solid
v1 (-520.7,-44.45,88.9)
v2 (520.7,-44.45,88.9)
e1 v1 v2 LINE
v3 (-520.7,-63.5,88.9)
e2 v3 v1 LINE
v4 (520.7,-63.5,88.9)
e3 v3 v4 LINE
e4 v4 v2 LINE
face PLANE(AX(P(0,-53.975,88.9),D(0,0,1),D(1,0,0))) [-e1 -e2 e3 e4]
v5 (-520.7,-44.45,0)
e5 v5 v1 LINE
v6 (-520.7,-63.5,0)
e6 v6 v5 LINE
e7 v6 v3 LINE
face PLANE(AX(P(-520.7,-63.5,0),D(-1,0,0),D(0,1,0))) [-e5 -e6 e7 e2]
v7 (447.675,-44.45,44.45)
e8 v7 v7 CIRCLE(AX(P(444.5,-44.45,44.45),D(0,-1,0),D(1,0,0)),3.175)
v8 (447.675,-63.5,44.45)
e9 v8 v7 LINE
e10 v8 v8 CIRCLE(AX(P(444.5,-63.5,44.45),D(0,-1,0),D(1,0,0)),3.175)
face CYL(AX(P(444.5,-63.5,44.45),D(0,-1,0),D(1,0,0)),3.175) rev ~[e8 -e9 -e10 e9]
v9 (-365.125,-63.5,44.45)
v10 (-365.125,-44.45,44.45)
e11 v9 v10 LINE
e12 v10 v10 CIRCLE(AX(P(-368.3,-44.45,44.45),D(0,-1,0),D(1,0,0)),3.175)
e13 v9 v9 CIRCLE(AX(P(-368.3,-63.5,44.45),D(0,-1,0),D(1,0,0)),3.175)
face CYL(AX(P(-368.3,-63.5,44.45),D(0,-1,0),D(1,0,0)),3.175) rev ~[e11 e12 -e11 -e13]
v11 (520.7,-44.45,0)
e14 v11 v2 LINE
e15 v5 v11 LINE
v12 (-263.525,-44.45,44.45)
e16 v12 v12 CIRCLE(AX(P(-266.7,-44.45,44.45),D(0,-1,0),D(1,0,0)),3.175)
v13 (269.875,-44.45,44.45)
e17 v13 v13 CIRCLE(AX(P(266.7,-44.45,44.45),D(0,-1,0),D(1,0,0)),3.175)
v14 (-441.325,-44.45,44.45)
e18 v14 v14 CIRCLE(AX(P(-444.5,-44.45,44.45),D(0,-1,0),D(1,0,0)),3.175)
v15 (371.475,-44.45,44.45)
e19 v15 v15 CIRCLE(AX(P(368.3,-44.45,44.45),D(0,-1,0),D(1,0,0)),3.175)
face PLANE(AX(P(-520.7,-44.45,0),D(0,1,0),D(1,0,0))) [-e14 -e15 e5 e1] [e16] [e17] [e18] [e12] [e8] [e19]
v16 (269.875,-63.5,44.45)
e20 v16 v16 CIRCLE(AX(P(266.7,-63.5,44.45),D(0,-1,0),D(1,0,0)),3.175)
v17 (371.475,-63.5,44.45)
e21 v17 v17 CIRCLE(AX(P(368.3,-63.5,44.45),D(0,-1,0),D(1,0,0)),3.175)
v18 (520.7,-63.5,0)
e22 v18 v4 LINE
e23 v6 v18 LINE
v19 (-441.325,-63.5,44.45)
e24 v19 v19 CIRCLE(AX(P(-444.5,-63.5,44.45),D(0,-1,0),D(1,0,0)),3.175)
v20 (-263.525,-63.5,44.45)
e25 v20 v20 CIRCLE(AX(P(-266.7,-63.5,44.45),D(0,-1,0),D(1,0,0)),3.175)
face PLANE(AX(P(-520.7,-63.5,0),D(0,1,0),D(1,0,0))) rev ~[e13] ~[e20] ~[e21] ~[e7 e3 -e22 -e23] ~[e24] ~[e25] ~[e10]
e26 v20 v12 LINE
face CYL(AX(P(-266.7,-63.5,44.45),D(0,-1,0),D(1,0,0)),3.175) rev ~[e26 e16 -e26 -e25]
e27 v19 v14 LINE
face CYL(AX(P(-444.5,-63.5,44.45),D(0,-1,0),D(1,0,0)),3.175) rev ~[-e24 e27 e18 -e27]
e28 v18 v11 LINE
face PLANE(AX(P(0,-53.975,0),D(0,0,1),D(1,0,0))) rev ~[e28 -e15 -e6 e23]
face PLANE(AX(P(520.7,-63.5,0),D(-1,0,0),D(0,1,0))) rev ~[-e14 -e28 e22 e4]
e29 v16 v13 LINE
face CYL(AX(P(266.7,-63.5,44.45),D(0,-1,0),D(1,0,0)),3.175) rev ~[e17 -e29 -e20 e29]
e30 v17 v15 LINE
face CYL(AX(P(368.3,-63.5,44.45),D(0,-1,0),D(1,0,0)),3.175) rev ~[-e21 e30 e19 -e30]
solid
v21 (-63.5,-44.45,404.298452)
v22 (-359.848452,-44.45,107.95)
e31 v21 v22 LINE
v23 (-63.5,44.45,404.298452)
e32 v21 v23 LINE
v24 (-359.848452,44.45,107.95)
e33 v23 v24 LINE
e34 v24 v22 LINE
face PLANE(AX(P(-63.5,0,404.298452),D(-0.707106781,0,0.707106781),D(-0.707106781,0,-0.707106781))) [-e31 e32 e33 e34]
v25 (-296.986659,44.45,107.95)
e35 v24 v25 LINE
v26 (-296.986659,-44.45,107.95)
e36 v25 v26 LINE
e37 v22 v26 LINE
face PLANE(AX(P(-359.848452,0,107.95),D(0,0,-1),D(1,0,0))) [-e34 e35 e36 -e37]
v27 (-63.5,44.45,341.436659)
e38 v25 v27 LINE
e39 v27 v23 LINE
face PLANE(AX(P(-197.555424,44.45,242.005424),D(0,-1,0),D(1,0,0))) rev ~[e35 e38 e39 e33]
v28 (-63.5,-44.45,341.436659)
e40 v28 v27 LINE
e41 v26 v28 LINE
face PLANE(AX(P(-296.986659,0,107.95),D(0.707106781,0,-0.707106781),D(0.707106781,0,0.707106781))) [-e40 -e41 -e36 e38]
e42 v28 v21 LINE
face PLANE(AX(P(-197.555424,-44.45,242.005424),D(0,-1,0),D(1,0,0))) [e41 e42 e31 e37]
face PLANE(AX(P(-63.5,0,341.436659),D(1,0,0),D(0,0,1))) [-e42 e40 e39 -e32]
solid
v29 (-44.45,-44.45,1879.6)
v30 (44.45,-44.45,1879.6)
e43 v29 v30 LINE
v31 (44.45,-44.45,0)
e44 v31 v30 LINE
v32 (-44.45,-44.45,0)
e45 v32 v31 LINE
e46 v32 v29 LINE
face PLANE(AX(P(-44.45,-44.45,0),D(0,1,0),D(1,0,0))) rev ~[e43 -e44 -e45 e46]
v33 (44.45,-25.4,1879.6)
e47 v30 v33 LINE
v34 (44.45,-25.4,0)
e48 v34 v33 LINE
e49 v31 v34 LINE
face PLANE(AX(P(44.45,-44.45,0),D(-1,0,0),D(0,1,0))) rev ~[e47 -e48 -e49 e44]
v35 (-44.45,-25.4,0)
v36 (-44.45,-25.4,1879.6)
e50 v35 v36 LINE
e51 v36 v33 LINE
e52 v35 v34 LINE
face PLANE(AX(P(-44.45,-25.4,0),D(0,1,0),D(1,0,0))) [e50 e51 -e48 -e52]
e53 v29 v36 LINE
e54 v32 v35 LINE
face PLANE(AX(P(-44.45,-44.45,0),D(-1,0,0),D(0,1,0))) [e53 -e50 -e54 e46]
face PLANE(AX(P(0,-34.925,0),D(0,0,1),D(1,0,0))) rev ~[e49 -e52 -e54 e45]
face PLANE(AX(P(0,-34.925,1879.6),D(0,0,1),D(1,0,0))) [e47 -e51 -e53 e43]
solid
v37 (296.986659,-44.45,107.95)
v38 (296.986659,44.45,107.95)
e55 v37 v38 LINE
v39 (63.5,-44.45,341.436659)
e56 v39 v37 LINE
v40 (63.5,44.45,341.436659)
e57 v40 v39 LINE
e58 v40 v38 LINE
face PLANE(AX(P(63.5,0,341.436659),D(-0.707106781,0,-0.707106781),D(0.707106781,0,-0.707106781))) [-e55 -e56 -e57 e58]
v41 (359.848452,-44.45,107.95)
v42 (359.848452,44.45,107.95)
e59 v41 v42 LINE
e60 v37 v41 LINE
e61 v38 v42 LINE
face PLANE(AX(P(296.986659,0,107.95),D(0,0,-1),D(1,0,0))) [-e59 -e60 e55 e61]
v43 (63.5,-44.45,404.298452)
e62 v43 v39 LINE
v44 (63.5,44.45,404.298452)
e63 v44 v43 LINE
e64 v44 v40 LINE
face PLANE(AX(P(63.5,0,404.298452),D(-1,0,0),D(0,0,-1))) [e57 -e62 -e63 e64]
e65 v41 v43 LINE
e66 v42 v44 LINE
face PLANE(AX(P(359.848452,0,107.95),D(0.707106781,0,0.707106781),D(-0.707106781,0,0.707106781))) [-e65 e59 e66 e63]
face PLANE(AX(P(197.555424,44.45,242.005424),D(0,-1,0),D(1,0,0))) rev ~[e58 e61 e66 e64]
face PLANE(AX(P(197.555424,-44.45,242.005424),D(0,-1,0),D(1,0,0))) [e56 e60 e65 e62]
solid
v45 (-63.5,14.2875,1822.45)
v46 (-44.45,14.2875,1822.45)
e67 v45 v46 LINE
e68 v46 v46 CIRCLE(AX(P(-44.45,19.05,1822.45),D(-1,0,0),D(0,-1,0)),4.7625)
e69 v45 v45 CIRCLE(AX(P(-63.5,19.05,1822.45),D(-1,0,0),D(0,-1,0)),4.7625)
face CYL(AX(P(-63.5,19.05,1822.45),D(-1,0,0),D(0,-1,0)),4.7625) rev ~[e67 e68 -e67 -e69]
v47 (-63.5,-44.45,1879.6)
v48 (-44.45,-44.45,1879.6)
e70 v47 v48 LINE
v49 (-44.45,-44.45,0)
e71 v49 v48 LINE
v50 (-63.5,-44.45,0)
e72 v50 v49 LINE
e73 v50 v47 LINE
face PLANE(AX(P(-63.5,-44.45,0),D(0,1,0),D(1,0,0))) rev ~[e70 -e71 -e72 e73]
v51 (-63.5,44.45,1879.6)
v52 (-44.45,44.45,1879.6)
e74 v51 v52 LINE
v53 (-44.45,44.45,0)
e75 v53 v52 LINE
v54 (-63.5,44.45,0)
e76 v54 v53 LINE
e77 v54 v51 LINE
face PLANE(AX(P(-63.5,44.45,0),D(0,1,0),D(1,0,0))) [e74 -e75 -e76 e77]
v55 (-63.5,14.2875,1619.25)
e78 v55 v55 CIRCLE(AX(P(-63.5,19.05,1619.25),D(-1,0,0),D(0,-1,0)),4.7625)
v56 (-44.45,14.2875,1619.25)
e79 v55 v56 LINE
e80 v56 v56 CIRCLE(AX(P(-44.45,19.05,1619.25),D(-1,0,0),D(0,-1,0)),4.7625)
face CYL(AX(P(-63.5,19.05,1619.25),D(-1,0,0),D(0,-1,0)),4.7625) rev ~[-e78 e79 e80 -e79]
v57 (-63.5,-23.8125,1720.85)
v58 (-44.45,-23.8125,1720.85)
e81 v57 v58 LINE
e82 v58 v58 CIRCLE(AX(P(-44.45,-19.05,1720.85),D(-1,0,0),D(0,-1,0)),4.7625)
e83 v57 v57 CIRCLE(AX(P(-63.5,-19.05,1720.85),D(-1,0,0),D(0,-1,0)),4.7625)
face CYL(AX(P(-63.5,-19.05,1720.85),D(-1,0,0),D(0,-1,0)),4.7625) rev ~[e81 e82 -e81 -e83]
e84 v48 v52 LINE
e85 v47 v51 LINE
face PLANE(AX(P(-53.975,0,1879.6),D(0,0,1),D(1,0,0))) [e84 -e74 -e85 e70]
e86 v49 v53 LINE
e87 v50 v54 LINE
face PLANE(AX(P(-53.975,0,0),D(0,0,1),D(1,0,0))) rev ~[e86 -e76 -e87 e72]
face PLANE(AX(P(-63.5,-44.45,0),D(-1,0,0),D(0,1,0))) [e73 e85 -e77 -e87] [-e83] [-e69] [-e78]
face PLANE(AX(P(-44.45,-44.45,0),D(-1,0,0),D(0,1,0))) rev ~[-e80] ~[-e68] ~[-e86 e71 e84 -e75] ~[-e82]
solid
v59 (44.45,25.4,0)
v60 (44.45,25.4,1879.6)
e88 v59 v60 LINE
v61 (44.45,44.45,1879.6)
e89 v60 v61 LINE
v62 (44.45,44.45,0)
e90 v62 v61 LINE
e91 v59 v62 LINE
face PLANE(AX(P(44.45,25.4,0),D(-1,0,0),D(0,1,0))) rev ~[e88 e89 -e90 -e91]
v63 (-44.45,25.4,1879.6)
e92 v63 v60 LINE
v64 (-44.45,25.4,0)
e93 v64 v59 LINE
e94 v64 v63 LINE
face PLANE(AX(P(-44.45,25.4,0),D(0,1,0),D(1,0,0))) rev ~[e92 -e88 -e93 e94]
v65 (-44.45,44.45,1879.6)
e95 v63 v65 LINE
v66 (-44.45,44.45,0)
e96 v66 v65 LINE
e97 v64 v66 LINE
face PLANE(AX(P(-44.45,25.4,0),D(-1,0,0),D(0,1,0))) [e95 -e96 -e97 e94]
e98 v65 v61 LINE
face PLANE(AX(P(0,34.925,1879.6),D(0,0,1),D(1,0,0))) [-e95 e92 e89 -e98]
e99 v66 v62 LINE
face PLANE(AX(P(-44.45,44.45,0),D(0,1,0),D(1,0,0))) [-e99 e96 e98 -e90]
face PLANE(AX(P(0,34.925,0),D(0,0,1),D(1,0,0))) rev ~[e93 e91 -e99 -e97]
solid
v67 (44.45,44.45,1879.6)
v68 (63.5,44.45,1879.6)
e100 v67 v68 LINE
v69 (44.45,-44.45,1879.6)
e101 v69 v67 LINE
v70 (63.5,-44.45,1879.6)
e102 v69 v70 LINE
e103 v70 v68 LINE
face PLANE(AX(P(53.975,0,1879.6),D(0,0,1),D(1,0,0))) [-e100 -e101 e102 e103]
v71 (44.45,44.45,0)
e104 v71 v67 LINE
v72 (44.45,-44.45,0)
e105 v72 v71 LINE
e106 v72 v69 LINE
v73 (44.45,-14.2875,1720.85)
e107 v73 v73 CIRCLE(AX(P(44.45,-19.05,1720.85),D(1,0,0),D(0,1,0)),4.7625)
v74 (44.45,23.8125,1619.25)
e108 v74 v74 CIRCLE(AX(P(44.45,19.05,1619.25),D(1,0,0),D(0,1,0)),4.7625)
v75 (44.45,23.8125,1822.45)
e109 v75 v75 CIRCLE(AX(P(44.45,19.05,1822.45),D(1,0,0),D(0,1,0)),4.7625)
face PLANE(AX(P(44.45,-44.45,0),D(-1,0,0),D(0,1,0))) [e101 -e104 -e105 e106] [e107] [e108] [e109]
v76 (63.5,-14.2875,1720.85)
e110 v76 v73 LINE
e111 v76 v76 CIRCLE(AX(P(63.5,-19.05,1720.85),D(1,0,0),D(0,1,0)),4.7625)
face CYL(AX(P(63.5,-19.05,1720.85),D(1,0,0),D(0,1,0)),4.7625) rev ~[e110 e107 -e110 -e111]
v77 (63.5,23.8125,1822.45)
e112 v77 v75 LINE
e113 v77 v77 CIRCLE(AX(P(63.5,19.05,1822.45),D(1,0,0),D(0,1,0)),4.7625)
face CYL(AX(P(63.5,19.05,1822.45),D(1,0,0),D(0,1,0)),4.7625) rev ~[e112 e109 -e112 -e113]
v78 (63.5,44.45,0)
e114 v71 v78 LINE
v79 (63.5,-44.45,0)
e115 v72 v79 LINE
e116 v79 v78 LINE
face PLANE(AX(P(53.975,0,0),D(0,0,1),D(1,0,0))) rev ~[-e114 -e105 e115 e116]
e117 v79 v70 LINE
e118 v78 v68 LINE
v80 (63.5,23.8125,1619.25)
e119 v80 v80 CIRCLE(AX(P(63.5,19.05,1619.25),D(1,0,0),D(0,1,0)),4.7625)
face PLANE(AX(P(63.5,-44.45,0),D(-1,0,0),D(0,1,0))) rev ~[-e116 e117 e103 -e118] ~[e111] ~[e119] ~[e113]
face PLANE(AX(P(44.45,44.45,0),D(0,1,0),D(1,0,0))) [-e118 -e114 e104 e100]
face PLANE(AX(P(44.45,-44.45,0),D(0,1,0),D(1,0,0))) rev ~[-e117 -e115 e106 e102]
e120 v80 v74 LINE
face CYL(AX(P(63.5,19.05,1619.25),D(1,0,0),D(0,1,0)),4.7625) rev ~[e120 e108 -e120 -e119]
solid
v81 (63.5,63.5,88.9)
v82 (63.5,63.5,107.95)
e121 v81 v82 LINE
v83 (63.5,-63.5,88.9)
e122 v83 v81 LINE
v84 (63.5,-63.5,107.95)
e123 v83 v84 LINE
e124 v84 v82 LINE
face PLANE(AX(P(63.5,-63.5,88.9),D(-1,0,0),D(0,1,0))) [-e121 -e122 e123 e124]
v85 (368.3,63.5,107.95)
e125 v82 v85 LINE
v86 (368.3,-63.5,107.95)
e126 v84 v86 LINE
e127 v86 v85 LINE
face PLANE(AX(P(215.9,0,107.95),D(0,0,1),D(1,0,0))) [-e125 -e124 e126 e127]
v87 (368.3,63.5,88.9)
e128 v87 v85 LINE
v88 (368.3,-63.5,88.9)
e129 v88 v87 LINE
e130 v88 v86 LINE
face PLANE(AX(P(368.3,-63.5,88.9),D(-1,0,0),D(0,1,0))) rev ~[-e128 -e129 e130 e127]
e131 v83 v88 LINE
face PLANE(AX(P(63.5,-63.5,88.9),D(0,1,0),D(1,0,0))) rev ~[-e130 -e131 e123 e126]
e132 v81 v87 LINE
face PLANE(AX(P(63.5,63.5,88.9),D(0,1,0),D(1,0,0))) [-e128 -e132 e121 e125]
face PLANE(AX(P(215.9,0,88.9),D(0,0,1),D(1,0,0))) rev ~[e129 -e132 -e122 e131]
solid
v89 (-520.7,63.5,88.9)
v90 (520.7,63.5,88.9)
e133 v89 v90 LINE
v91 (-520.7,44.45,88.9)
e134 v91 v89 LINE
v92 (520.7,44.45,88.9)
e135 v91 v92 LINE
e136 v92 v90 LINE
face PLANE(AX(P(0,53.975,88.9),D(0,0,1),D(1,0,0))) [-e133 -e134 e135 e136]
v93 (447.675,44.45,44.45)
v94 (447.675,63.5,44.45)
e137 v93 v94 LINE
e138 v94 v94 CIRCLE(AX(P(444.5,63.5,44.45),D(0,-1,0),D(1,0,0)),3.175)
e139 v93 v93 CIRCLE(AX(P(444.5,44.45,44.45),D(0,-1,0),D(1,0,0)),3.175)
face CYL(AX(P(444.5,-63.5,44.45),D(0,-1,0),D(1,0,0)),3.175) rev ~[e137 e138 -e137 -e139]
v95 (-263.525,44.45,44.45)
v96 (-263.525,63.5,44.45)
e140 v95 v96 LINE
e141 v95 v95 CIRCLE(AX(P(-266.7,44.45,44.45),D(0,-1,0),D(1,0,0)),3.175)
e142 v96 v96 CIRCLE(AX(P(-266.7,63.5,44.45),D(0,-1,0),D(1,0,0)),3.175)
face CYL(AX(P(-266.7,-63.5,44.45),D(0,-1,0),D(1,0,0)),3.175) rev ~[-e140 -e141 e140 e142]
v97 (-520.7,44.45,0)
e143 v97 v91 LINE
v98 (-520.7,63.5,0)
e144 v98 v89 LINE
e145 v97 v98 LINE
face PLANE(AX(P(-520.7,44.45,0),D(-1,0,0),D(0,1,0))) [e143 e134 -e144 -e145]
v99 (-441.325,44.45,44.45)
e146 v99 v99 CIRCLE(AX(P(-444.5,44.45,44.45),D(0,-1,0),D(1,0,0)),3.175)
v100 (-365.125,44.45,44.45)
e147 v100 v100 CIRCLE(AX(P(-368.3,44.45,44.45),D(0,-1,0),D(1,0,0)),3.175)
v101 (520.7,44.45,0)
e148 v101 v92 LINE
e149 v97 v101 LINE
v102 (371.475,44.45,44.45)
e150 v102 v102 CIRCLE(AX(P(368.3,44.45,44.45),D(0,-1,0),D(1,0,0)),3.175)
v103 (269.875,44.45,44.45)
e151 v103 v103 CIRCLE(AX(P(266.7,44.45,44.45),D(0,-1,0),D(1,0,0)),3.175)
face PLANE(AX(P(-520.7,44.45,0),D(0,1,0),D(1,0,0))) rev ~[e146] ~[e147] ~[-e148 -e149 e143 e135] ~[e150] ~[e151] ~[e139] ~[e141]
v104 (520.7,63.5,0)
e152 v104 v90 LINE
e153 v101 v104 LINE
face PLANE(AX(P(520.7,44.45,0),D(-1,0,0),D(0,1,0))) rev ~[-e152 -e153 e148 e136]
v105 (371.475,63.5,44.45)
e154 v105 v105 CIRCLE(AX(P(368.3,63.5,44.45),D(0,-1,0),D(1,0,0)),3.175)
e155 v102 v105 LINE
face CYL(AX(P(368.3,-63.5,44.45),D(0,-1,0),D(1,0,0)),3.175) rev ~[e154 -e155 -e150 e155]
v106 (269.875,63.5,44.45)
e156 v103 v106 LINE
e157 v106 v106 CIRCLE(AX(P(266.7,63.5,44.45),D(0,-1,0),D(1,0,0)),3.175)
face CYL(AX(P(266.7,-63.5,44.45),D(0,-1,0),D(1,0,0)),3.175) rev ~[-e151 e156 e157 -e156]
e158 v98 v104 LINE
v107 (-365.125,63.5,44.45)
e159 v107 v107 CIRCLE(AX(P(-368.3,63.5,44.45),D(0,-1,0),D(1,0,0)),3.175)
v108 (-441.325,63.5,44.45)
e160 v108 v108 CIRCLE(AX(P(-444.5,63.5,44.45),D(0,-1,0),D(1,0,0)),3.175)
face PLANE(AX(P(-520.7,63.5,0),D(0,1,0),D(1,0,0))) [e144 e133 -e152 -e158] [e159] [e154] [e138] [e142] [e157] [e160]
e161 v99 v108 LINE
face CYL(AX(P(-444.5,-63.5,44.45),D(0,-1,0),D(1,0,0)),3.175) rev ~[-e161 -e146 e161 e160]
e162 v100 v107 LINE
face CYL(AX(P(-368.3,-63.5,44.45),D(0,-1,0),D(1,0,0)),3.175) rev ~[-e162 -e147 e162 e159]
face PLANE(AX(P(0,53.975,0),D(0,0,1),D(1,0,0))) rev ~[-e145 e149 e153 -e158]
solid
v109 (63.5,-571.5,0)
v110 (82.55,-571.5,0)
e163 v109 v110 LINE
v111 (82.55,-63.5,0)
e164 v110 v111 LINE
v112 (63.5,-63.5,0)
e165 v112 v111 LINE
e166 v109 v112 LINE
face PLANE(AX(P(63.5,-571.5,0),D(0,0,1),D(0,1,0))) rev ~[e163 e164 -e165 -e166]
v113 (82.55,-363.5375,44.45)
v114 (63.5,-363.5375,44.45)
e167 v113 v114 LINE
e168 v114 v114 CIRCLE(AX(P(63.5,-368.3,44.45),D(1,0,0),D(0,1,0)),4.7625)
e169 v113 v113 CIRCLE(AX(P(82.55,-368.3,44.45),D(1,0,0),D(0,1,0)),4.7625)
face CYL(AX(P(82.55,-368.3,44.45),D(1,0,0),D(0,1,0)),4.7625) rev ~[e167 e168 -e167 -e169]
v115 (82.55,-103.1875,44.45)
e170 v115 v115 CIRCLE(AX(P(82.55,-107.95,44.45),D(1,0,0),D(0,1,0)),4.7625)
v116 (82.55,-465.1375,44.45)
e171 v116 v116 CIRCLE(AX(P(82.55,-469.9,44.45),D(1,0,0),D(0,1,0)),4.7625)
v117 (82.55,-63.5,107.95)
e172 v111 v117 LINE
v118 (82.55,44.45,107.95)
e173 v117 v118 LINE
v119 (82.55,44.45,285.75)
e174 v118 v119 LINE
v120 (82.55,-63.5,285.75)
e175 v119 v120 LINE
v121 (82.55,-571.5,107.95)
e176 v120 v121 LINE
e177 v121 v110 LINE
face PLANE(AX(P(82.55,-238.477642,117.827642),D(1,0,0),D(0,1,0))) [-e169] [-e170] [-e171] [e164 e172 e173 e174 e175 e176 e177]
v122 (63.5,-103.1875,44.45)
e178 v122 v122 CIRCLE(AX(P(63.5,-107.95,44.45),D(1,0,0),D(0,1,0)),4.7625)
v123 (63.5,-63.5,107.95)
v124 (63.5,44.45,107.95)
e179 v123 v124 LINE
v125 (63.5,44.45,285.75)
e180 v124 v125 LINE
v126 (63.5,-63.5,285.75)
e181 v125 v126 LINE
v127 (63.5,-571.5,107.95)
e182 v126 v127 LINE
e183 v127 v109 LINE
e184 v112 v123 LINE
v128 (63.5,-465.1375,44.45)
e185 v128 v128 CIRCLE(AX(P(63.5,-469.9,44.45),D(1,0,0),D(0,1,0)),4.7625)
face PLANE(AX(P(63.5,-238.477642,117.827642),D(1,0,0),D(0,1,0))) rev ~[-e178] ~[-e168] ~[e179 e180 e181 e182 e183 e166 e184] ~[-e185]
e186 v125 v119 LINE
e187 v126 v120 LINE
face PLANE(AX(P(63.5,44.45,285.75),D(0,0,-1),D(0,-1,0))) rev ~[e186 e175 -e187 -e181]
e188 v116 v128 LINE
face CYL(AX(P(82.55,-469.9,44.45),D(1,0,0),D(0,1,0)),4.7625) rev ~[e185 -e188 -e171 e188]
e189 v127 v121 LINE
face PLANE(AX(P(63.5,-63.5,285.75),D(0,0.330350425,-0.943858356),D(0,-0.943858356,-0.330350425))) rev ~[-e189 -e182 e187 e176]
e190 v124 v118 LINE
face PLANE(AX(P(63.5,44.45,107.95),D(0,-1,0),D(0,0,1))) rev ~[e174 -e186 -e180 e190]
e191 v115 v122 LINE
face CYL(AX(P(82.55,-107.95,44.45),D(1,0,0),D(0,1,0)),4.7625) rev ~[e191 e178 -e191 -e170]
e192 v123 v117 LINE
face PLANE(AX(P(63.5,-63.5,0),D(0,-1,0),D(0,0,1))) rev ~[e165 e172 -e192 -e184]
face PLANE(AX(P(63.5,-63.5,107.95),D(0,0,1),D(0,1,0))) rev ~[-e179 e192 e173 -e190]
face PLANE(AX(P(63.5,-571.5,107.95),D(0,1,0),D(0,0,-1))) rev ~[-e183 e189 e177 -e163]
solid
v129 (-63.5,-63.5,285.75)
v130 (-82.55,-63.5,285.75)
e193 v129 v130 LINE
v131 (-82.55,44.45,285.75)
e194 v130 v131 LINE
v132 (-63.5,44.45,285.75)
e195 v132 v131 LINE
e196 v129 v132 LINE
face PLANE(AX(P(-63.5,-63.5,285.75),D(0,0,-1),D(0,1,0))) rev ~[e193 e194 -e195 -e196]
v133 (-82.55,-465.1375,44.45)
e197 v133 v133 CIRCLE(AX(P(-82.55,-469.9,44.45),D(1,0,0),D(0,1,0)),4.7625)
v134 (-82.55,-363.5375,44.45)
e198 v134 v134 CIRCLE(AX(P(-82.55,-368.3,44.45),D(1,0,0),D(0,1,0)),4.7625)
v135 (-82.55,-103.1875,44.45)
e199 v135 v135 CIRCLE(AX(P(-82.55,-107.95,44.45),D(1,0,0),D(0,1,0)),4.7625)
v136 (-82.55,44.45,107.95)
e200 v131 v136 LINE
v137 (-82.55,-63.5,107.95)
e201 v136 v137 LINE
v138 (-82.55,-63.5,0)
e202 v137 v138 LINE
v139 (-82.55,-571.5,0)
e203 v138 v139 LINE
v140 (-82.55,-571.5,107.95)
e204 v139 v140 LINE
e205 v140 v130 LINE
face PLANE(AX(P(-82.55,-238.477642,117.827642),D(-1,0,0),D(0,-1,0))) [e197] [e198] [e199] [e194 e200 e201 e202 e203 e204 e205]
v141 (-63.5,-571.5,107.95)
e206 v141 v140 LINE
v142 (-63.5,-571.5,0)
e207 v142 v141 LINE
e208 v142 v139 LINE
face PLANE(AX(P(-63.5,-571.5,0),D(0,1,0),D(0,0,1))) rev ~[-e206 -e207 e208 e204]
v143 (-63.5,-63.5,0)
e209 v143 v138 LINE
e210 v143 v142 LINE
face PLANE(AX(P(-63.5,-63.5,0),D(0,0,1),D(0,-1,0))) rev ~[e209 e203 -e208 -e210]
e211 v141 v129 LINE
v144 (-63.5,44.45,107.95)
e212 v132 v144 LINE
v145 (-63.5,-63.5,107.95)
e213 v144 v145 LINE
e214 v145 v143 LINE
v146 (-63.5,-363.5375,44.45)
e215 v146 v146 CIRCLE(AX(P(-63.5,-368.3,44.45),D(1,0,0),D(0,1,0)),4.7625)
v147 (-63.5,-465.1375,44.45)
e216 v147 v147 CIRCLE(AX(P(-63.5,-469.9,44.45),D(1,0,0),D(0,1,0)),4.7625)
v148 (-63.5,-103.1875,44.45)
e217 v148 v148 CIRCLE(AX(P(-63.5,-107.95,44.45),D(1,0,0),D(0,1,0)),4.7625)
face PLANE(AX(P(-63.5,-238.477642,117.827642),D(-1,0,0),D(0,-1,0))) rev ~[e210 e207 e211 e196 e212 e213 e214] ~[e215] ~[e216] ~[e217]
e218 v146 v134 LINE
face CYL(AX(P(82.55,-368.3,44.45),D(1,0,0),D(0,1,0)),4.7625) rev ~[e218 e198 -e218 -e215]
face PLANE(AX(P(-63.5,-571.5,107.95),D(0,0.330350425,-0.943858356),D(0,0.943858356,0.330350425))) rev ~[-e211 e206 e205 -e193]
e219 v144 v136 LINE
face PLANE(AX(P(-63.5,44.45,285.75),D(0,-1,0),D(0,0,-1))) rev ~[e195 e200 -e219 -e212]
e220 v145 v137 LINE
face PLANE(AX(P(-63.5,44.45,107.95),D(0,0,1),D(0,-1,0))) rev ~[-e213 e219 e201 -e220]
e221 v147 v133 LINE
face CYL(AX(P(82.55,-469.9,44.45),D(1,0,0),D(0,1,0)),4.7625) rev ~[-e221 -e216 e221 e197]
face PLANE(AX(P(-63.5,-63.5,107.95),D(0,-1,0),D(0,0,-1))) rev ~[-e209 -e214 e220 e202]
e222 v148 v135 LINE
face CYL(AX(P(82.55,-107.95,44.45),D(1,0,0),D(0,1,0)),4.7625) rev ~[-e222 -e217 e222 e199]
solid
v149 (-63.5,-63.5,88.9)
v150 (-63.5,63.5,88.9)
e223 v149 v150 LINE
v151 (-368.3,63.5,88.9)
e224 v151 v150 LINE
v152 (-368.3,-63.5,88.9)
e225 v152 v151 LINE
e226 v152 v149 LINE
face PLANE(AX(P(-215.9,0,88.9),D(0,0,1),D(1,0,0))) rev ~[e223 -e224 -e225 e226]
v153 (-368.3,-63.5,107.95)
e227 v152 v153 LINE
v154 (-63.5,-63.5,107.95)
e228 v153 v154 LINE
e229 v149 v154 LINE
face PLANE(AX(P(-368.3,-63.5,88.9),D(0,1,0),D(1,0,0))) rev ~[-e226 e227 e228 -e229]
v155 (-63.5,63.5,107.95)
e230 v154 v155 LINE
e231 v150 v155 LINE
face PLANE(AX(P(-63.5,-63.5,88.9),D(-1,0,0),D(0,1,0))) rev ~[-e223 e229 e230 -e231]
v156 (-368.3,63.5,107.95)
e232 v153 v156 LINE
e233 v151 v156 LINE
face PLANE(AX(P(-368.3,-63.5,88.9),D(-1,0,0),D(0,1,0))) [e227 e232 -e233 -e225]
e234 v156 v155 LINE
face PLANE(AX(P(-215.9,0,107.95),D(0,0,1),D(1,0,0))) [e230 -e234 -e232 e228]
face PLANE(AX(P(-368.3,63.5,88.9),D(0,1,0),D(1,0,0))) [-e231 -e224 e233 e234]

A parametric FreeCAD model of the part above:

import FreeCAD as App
import Part
import Sketcher
Q = App.Units.Quantity


def add_polygon(sketch, points):
    """Adds a closed chain of lines whose ends are joined by coincident constraints."""
    first, n = sketch.GeometryCount, len(points)
    for a, b in zip(points, points[1:] + points[:1]):
        sketch.addGeometry(Part.LineSegment(App.Vector(*a, 0), App.Vector(*b, 0)), False)
    for i in range(n):
        sketch.addConstraint(Sketcher.Constraint("Coincident", first + i, 2, first + (i + 1) % n, 1))

doc = App.newDocument("Part")
params = doc.addObject("Spreadsheet::Sheet", "Params")
for row, (alias, value) in enumerate([
    ("sketch1_width", "3.5 in"),
    ("sketch1_height", "0.75 in"),
    ("pad1_length", "74 in"),
    ("sketch2_diameter", "0.25 in"),
    ("sketch3_diameter", "0.375 in"),
    ("pocket2_length", "1 in"),
    ("sketch4_width", "3.5 in"),
    ("sketch4_height", "0.75 in"),
    ("pad2_length", "74 in"),
    ("sketch5_height", "3.5 in"),
    ("sketch5_width", "0.75 in"),
    ("pad3_length", "74 in"),
    ("sketch6_diameter", "0.375 in"),
    ("pocket3_length", "1 in"),
    ("sketch7_height", "3.5 in"),
    ("sketch7_width", "0.75 in"),
    ("pad4_length", "74 in"),
    ("sketch8_diameter", "0.375 in"),
    ("pocket4_length", "1 in"),
    ("sketch9_width", "41 in"),
    ("sketch9_height", "0.75 in"),
    ("pad5_length", "3.5 in"),
    ("sketch10_width", "41 in"),
    ("sketch10_height", "0.75 in"),
    ("pad6_length", "3.5 in"),
    ("sketch11_width", "12 in"),
    ("sketch11_height", "5 in"),
    ("pad7_length", "0.75 in"),
    ("sketch12_width", "12 in"),
    ("sketch12_height", "5 in"),
    ("pad8_length", "0.75 in"),
    ("sketch13_length", "13 in"),
    ("sketch13_length2", "16.5 in"),
    ("pad9_length", "1.75 in"),
    ("pad9_length2", "1.75 in"),
    ("sketch14_length", "13 in"),
    ("sketch14_length2", "16.5 in"),
    ("pad10_length", "1.75 in"),
    ("pad10_length2", "1.75 in"),
    ("sketch15_width", "20 in"),
    ("sketch15_height", "7 in"),
    ("sketch15_width2", "4.25 in"),
    ("pad11_length", "0.75 in"),
    ("sketch16_width", "20 in"),
    ("sketch16_height", "7 in"),
    ("sketch16_width2", "4.25 in"),
    ("pad12_length", "0.75 in"),
    ("sketch17_diameter", "0.25 in"),
    ("pad13_length", "127.001 mm"),
    ("sketch18_diameter", "0.375 in"),
    ("pad14_length", "603.251 mm"),
], start=1):
    params.set(f"A{row}", alias)
    params.set(f"B{row}", "=" + value)
    params.setAlias(f"B{row}", alias)

body = doc.addObject("PartDesign::Body", "Body")

# Sketch on XY plane
sketch1 = doc.addObject("Sketcher::SketchObject", "Sketch")
body.addObject(sketch1)
sketch1.AttachmentSupport = (doc.XY_Plane, [""])
sketch1.MapMode = "FlatFace"
add_polygon(sketch1, [(-44, 44), (-44, 25), (44, 25), (44, 44)])  # lines 0-3
sketch1.addConstraint([
    Sketcher.Constraint("Vertical", 0),
    Sketcher.Constraint("Horizontal", 1),
    Sketcher.Constraint("Vertical", 2),
    Sketcher.Constraint("Horizontal", 3),
    Sketcher.Constraint("DistanceX", 1, 1, 1, 2, Q("3.5 in")),
    Sketcher.Constraint("DistanceY", -1, 1, 0, 2, Q("1 in")),
    Sketcher.Constraint("DistanceY", 0, 2, 0, 1, Q("0.75 in")),
    Sketcher.Constraint("DistanceX", 0, 2, -1, 1, Q("1.75 in")),
])
sketch1.setExpression("Constraints[8]", "Params.sketch1_width")
sketch1.setExpression("Constraints[10]", "Params.sketch1_height")
pad1 = doc.addObject("PartDesign::Pad", "Pad")
body.addObject(pad1)
pad1.Profile = sketch1
pad1.setExpression("Length", "Params.pad1_length")

# Sketch on XZ plane
sketch2 = doc.addObject("Sketcher::SketchObject", "Sketch001")
body.addObject(sketch2)
sketch2.AttachmentSupport = (doc.XZ_Plane, [""])
sketch2.MapMode = "FlatFace"
sketch2.AttachmentOffset = App.Placement(App.Vector(0, 0, -2.5 * 25.4), App.Rotation())
sketch2.addGeometry([
    Part.Circle(App.Vector(444.5, 44.5, 0), App.Vector(0, 0, 1), 3.2),  # 0
    Part.Circle(App.Vector(368.3, 44.5, 0), App.Vector(0, 0, 1), 3.2),  # 1
    Part.Circle(App.Vector(266.7, 44.5, 0), App.Vector(0, 0, 1), 3.2),  # 2
    Part.Circle(App.Vector(-266.7, 44.5, 0), App.Vector(0, 0, 1), 3.2),  # 3
    Part.Circle(App.Vector(-368.3, 44.5, 0), App.Vector(0, 0, 1), 3.2),  # 4
    Part.Circle(App.Vector(-444.5, 44.5, 0), App.Vector(0, 0, 1), 3.2),  # 5
], False)
sketch2.addConstraint([
    Sketcher.Constraint("Equal", 0, 1),
    Sketcher.Constraint("Equal", 1, 2),
    Sketcher.Constraint("Equal", 2, 3),
    Sketcher.Constraint("Equal", 3, 4),
    Sketcher.Constraint("Equal", 4, 5),
    Sketcher.Constraint("Symmetric", 2, 3, 3, 3, -2),
    Sketcher.Constraint("Symmetric", 1, 3, 4, 3, -2),
    Sketcher.Constraint("Symmetric", 0, 3, 5, 3, -2),
    Sketcher.Constraint("Horizontal", 0, 3, 1, 3),
    Sketcher.Constraint("Horizontal", 1, 3, 2, 3),
    Sketcher.Constraint("Diameter", 0, Q("0.25 in")),
    Sketcher.Constraint("DistanceX", 1, 3, 0, 3, Q("3 in")),
    Sketcher.Constraint("DistanceX", 2, 3, 1, 3, Q("4 in")),
    Sketcher.Constraint("DistanceX", 3, 3, 2, 3, Q("21 in")),
    Sketcher.Constraint("DistanceY", -1, 1, 0, 3, Q("1.75 in")),
])
sketch2.setExpression("Constraints[10]", "Params.sketch2_diameter")
pocket1 = doc.addObject("PartDesign::Pocket", "Pocket")
body.addObject(pocket1)
pocket1.Profile = sketch2
pocket1.Type = "ThroughAll"
pocket1.Reversed = True

# Sketch on YZ plane
sketch3 = doc.addObject("Sketcher::SketchObject", "Sketch002")
body.addObject(sketch3)
sketch3.AttachmentSupport = (doc.YZ_Plane, [""])
sketch3.MapMode = "FlatFace"
sketch3.AttachmentOffset = App.Placement(App.Vector(0, 0, -3.25 * 25.4), App.Rotation())
sketch3.addGeometry([
    Part.Circle(App.Vector(-108, 44.5, 0), App.Vector(0, 0, 1), 4.8),
    Part.Circle(App.Vector(-368.3, 44.5, 0), App.Vector(0, 0, 1), 4.8),
    Part.Circle(App.Vector(-469.9, 44.5, 0), App.Vector(0, 0, 1), 4.8),
], False)
sketch3.addConstraint([
    Sketcher.Constraint("Equal", 0, 1),
    Sketcher.Constraint("Equal", 1, 2),
    Sketcher.Constraint("Horizontal", 0, 3, 1, 3),
    Sketcher.Constraint("Horizontal", 1, 3, 2, 3),
    Sketcher.Constraint("Diameter", 0, Q("0.375 in")),
    Sketcher.Constraint("DistanceX", 2, 3, 1, 3, Q("4 in")),
    Sketcher.Constraint("DistanceX", 1, 3, -1, 1, Q("14.5 in")),
    Sketcher.Constraint("DistanceX", 0, 3, -1, 1, Q("4.25 in")),
    Sketcher.Constraint("DistanceY", -1, 1, 0, 3, Q("1.75 in")),
])
sketch3.setExpression("Constraints[4]", "Params.sketch3_diameter")
pocket2 = doc.addObject("PartDesign::Pocket", "Pocket001")
body.addObject(pocket2)
pocket2.Profile = sketch3
pocket2.setExpression("Length", "Params.pocket2_length")
pocket2.Reversed = True
body2 = doc.addObject("PartDesign::Body", "Body001")

# Sketch on XY plane
sketch4 = doc.addObject("Sketcher::SketchObject", "Sketch003")
body2.addObject(sketch4)
sketch4.AttachmentSupport = (doc.getObject("XY_Plane001"), [""])
sketch4.MapMode = "FlatFace"
add_polygon(sketch4, [(-44, -25), (-44, -44), (44, -44), (44, -25)])  # lines 0-3
sketch4.addConstraint([
    Sketcher.Constraint("Vertical", 0),
    Sketcher.Constraint("Horizontal", 1),
    Sketcher.Constraint("Vertical", 2),
    Sketcher.Constraint("Horizontal", 3),
    Sketcher.Constraint("DistanceX", 1, 1, 1, 2, Q("3.5 in")),
    Sketcher.Constraint("DistanceY", 2, 2, -1, 1, Q("1 in")),
    Sketcher.Constraint("DistanceY", 0, 2, 0, 1, Q("0.75 in")),
    Sketcher.Constraint("DistanceX", 0, 2, -1, 1, Q("1.75 in")),
])
sketch4.setExpression("Constraints[8]", "Params.sketch4_width")
sketch4.setExpression("Constraints[10]", "Params.sketch4_height")
pad2 = doc.addObject("PartDesign::Pad", "Pad001")
body2.addObject(pad2)
pad2.Profile = sketch4
pad2.setExpression("Length", "Params.pad2_length")
body3 = doc.addObject("PartDesign::Body", "Body002")

# Sketch on XY plane
sketch5 = doc.addObject("Sketcher::SketchObject", "Sketch004")
body3.addObject(sketch5)
sketch5.AttachmentSupport = (doc.getObject("XY_Plane002"), [""])
sketch5.MapMode = "FlatFace"
add_polygon(sketch5, [(44, 44), (44, -44), (64, -44), (64, 44)])  # lines 0-3
sketch5.addConstraint([
    Sketcher.Constraint("Vertical", 0),
    Sketcher.Constraint("Horizontal", 1),
    Sketcher.Constraint("Vertical", 2),
    Sketcher.Constraint("Horizontal", 3),
    Sketcher.Constraint("DistanceY", 0, 2, 0, 1, Q("3.5 in")),
    Sketcher.Constraint("DistanceX", 1, 1, 1, 2, Q("0.75 in")),
    Sketcher.Constraint("DistanceX", -1, 1, 1, 2, Q("2.5 in")),
    Sketcher.Constraint("DistanceY", 0, 2, -1, 1, Q("1.75 in")),
])
sketch5.setExpression("Constraints[8]", "Params.sketch5_height")
sketch5.setExpression("Constraints[9]", "Params.sketch5_width")
pad3 = doc.addObject("PartDesign::Pad", "Pad002")
body3.addObject(pad3)
pad3.Profile = sketch5
pad3.setExpression("Length", "Params.pad3_length")

# Sketch on YZ plane
sketch6 = doc.addObject("Sketcher::SketchObject", "Sketch005")
body3.addObject(sketch6)
sketch6.AttachmentSupport = (doc.getObject("YZ_Plane002"), [""])
sketch6.MapMode = "FlatFace"
sketch6.AttachmentOffset = App.Placement(App.Vector(0, 0, 2.5 * 25.4), App.Rotation())
sketch6.addGeometry([
    Part.Circle(App.Vector(19.1, 1822.5, 0), App.Vector(0, 0, 1), 4.8),
    Part.Circle(App.Vector(-19.1, 1720.8, 0), App.Vector(0, 0, 1), 4.8),
    Part.Circle(App.Vector(19.1, 1619.2, 0), App.Vector(0, 0, 1), 4.8),
], False)
sketch6.addConstraint([
    Sketcher.Constraint("Equal", 0, 1),
    Sketcher.Constraint("Equal", 1, 2),
    Sketcher.Constraint("Vertical", 0, 3, 2, 3),
    Sketcher.Constraint("Diameter", 0, Q("0.375 in")),
    Sketcher.Constraint("DistanceY", 1, 3, 0, 3, Q("4 in")),
    Sketcher.Constraint("DistanceY", 2, 3, 1, 3, Q("4 in")),
    Sketcher.Constraint("DistanceX", 1, 3, 0, 3, Q("1.5 in")),
    Sketcher.Constraint("DistanceX", -1, 1, 0, 3, Q("0.75 in")),
    Sketcher.Constraint("DistanceY", -1, 1, 0, 3, Q("71.75 in")),
])
sketch6.setExpression("Constraints[3]", "Params.sketch6_diameter")
pocket3 = doc.addObject("PartDesign::Pocket", "Pocket002")
body3.addObject(pocket3)
pocket3.Profile = sketch6
pocket3.setExpression("Length", "Params.pocket3_length")
body4 = doc.addObject("PartDesign::Body", "Body003")

# Sketch on XY plane
sketch7 = doc.addObject("Sketcher::SketchObject", "Sketch006")
body4.addObject(sketch7)
sketch7.AttachmentSupport = (doc.getObject("XY_Plane003"), [""])
sketch7.MapMode = "FlatFace"
add_polygon(sketch7, [(-64, 44), (-64, -44), (-44, -44), (-44, 44)])  # lines 0-3
sketch7.addConstraint([
    Sketcher.Constraint("Vertical", 0),
    Sketcher.Constraint("Horizontal", 1),
    Sketcher.Constraint("Vertical", 2),
    Sketcher.Constraint("Horizontal", 3),
    Sketcher.Constraint("DistanceY", 0, 2, 0, 1, Q("3.5 in")),
    Sketcher.Constraint("DistanceX", 1, 1, 1, 2, Q("0.75 in")),
    Sketcher.Constraint("DistanceX", 0, 2, -1, 1, Q("2.5 in")),
    Sketcher.Constraint("DistanceY", 0, 2, -1, 1, Q("1.75 in")),
])
sketch7.setExpression("Constraints[8]", "Params.sketch7_height")
sketch7.setExpression("Constraints[9]", "Params.sketch7_width")
pad4 = doc.addObject("PartDesign::Pad", "Pad003")
body4.addObject(pad4)
pad4.Profile = sketch7
pad4.setExpression("Length", "Params.pad4_length")

# Sketch on YZ plane
sketch8 = doc.addObject("Sketcher::SketchObject", "Sketch007")
body4.addObject(sketch8)
sketch8.AttachmentSupport = (doc.getObject("YZ_Plane003"), [""])
sketch8.MapMode = "FlatFace"
sketch8.AttachmentOffset = App.Placement(App.Vector(0, 0, -2.5 * 25.4), App.Rotation())
sketch8.addGeometry([
    Part.Circle(App.Vector(19.1, 1822.5, 0), App.Vector(0, 0, 1), 4.8),
    Part.Circle(App.Vector(-19.1, 1720.8, 0), App.Vector(0, 0, 1), 4.8),
    Part.Circle(App.Vector(19.1, 1619.2, 0), App.Vector(0, 0, 1), 4.8),
], False)
sketch8.addConstraint([
    Sketcher.Constraint("Equal", 0, 1),
    Sketcher.Constraint("Equal", 1, 2),
    Sketcher.Constraint("Vertical", 0, 3, 2, 3),
    Sketcher.Constraint("Diameter", 0, Q("0.375 in")),
    Sketcher.Constraint("DistanceY", 1, 3, 0, 3, Q("4 in")),
    Sketcher.Constraint("DistanceY", 2, 3, 1, 3, Q("4 in")),
    Sketcher.Constraint("DistanceX", 1, 3, 0, 3, Q("1.5 in")),
    Sketcher.Constraint("DistanceX", -1, 1, 0, 3, Q("0.75 in")),
    Sketcher.Constraint("DistanceY", -1, 1, 0, 3, Q("71.75 in")),
])
sketch8.setExpression("Constraints[3]", "Params.sketch8_diameter")
pocket4 = doc.addObject("PartDesign::Pocket", "Pocket003")
body4.addObject(pocket4)
pocket4.Profile = sketch8
pocket4.setExpression("Length", "Params.pocket4_length")
pocket4.Reversed = True
body5 = doc.addObject("PartDesign::Body", "Body004")

# Sketch on XY plane
sketch9 = doc.addObject("Sketcher::SketchObject", "Sketch008")
body5.addObject(sketch9)
sketch9.AttachmentSupport = (doc.getObject("XY_Plane004"), [""])
sketch9.MapMode = "FlatFace"
add_polygon(sketch9, [(-521, 64), (-521, 44), (521, 44), (521, 64)])  # lines 0-3
sketch9.addConstraint([
    Sketcher.Constraint("Vertical", 0),
    Sketcher.Constraint("Horizontal", 1),
    Sketcher.Constraint("Vertical", 2),
    Sketcher.Constraint("Horizontal", 3),
    Sketcher.Constraint("DistanceX", 1, 1, 1, 2, Q("41 in")),
    Sketcher.Constraint("DistanceY", 0, 2, 0, 1, Q("0.75 in")),
    Sketcher.Constraint("DistanceX", 0, 2, -1, 1, Q("20.5 in")),
    Sketcher.Constraint("DistanceY", -1, 1, 2, 2, Q("2.5 in")),
])
sketch9.setExpression("Constraints[8]", "Params.sketch9_width")
sketch9.setExpression("Constraints[9]", "Params.sketch9_height")
pad5 = doc.addObject("PartDesign::Pad", "Pad004")
body5.addObject(pad5)
pad5.Profile = sketch9
pad5.setExpression("Length", "Params.pad5_length")
body6 = doc.addObject("PartDesign::Body", "Body005")

# Sketch on XY plane
sketch10 = doc.addObject("Sketcher::SketchObject", "Sketch009")
body6.addObject(sketch10)
sketch10.AttachmentSupport = (doc.getObject("XY_Plane005"), [""])
sketch10.MapMode = "FlatFace"
add_polygon(sketch10, [(-521, -44), (-521, -64), (521, -64), (521, -44)])  # lines 0-3
sketch10.addConstraint([
    Sketcher.Constraint("Vertical", 0),
    Sketcher.Constraint("Horizontal", 1),
    Sketcher.Constraint("Vertical", 2),
    Sketcher.Constraint("Horizontal", 3),
    Sketcher.Constraint("DistanceX", 1, 1, 1, 2, Q("41 in")),
    Sketcher.Constraint("DistanceY", 0, 2, 0, 1, Q("0.75 in")),
    Sketcher.Constraint("DistanceX", 0, 2, -1, 1, Q("20.5 in")),
    Sketcher.Constraint("DistanceY", 0, 2, -1, 1, Q("2.5 in")),
])
sketch10.setExpression("Constraints[8]", "Params.sketch10_width")
sketch10.setExpression("Constraints[9]", "Params.sketch10_height")
pad6 = doc.addObject("PartDesign::Pad", "Pad005")
body6.addObject(pad6)
pad6.Profile = sketch10
pad6.setExpression("Length", "Params.pad6_length")
body7 = doc.addObject("PartDesign::Body", "Body006")

# Sketch on XY plane
sketch11 = doc.addObject("Sketcher::SketchObject", "Sketch010")
body7.addObject(sketch11)
sketch11.AttachmentSupport = (doc.getObject("XY_Plane006"), [""])
sketch11.MapMode = "FlatFace"
sketch11.AttachmentOffset = App.Placement(App.Vector(0, 0, 3.5 * 25.4), App.Rotation())
add_polygon(sketch11, [(-368, 64), (-368, -64), (-64, -64), (-64, 64)])  # lines 0-3
sketch11.addConstraint([
    Sketcher.Constraint("Vertical", 0),
    Sketcher.Constraint("Horizontal", 1),
    Sketcher.Constraint("Vertical", 2),
    Sketcher.Constraint("Horizontal", 3),
    Sketcher.Constraint("DistanceX", 1, 1, 1, 2, Q("12 in")),
    Sketcher.Constraint("DistanceY", 0, 2, 0, 1, Q("5 in")),
    Sketcher.Constraint("DistanceX", 0, 2, -1, 1, Q("14.5 in")),
    Sketcher.Constraint("DistanceY", 0, 2, -1, 1, Q("2.5 in")),
])
sketch11.setExpression("Constraints[8]", "Params.sketch11_width")
sketch11.setExpression("Constraints[9]", "Params.sketch11_height")
pad7 = doc.addObject("PartDesign::Pad", "Pad006")
body7.addObject(pad7)
pad7.Profile = sketch11
pad7.setExpression("Length", "Params.pad7_length")
body8 = doc.addObject("PartDesign::Body", "Body007")

# Sketch on XY plane
sketch12 = doc.addObject("Sketcher::SketchObject", "Sketch011")
body8.addObject(sketch12)
sketch12.AttachmentSupport = (doc.getObject("XY_Plane007"), [""])
sketch12.MapMode = "FlatFace"
sketch12.AttachmentOffset = App.Placement(App.Vector(0, 0, 3.5 * 25.4), App.Rotation())
add_polygon(sketch12, [(64, 64), (64, -64), (368, -64), (368, 64)])  # lines 0-3
sketch12.addConstraint([
    Sketcher.Constraint("Vertical", 0),
    Sketcher.Constraint("Horizontal", 1),
    Sketcher.Constraint("Vertical", 2),
    Sketcher.Constraint("Horizontal", 3),
    Sketcher.Constraint("DistanceX", 1, 1, 1, 2, Q("12 in")),
    Sketcher.Constraint("DistanceY", 0, 2, 0, 1, Q("5 in")),
    Sketcher.Constraint("DistanceX", -1, 1, 0, 2, Q("2.5 in")),
    Sketcher.Constraint("DistanceY", 0, 2, -1, 1, Q("2.5 in")),
])
sketch12.setExpression("Constraints[8]", "Params.sketch12_width")
sketch12.setExpression("Constraints[9]", "Params.sketch12_height")
pad8 = doc.addObject("PartDesign::Pad", "Pad007")
body8.addObject(pad8)
pad8.Profile = sketch12
pad8.setExpression("Length", "Params.pad8_length")
body9 = doc.addObject("PartDesign::Body", "Body008")

# Sketch on XZ plane
sketch13 = doc.addObject("Sketcher::SketchObject", "Sketch012")
body9.addObject(sketch13)
sketch13.AttachmentSupport = (doc.getObject("XZ_Plane008"), [""])
sketch13.MapMode = "FlatFace"
add_polygon(sketch13, [(-64, 404), (-360, 108), (-297, 108), (-64, 341)])  # lines 0-3
sketch13.addConstraint([
    Sketcher.Constraint("Horizontal", 1),
    Sketcher.Constraint("Vertical", 3),
    Sketcher.Constraint("Parallel", 0, 2),
    Sketcher.Constraint("Equal", 1, 3),
    Sketcher.Constraint("Distance", 2, Q("13 in")),
    Sketcher.Constraint("Distance", 0, Q("16.5 in")),
    Sketcher.Constraint("DistanceX", 2, 2, -1, 1, Q("2.5 in")),
    Sketcher.Constraint("DistanceY", -1, 1, 0, 2, Q("4.25 in")),
])
sketch13.setExpression("Constraints[8]", "Params.sketch13_length")
sketch13.setExpression("Constraints[9]", "Params.sketch13_length2")
pad9 = doc.addObject("PartDesign::Pad", "Pad008")
body9.addObject(pad9)
pad9.Profile = sketch13
pad9.Type = "TwoLengths"
pad9.setExpression("Length", "Params.pad9_length")
pad9.setExpression("Length2", "Params.pad9_length2")
body10 = doc.addObject("PartDesign::Body", "Body009")

# Sketch on XZ plane
sketch14 = doc.addObject("Sketcher::SketchObject", "Sketch013")
body10.addObject(sketch14)
sketch14.AttachmentSupport = (doc.getObject("XZ_Plane009"), [""])
sketch14.MapMode = "FlatFace"
add_polygon(sketch14, [(360, 108), (64, 404), (64, 341), (297, 108)])  # lines 0-3
sketch14.addConstraint([
    Sketcher.Constraint("Vertical", 1),
    Sketcher.Constraint("Horizontal", 3),
    Sketcher.Constraint("Parallel", 0, 2),
    Sketcher.Constraint("Equal", 3, 1),
    Sketcher.Constraint("Distance", 2, Q("13 in")),
    Sketcher.Constraint("Distance", 0, Q("16.5 in")),
    Sketcher.Constraint("DistanceX", -1, 1, 0, 2, Q("2.5 in")),
    Sketcher.Constraint("DistanceY", -1, 1, 2, 2, Q("4.25 in")),
])
sketch14.setExpression("Constraints[8]", "Params.sketch14_length")
sketch14.setExpression("Constraints[9]", "Params.sketch14_length2")
pad10 = doc.addObject("PartDesign::Pad", "Pad009")
body10.addObject(pad10)
pad10.Profile = sketch14
pad10.Type = "TwoLengths"
pad10.setExpression("Length", "Params.pad10_length")
pad10.setExpression("Length2", "Params.pad10_length2")
body11 = doc.addObject("PartDesign::Body", "Body010")

# Sketch on YZ plane
sketch15 = doc.addObject("Sketcher::SketchObject", "Sketch014")
body11.addObject(sketch15)
sketch15.AttachmentSupport = (doc.getObject("YZ_Plane010"), [""])
sketch15.MapMode = "FlatFace"
sketch15.AttachmentOffset = App.Placement(App.Vector(0, 0, -2.5 * 25.4), App.Rotation())
add_polygon(sketch15, [(44, 286), (44, 108), (-64, 108), (-64, 0), (-572, 0), (-572, 108), (-64, 286)])  # lines 0-6
sketch15.addConstraint([
    Sketcher.Constraint("Vertical", 0),
    Sketcher.Constraint("Horizontal", 1),
    Sketcher.Constraint("Vertical", 2),
    Sketcher.Constraint("Horizontal", 3),
    Sketcher.Constraint("Vertical", 4),
    Sketcher.Constraint("Horizontal", 6),
    Sketcher.Constraint("PointOnObject", 2, 2, -1),
    Sketcher.Constraint("Horizontal", 1, 2, 4, 2),
    Sketcher.Constraint("Vertical", 2, 2, 5, 2),
    Sketcher.Constraint("Equal", 6, 2),
    Sketcher.Constraint("DistanceX", 3, 2, 3, 1, Q("20 in")),
    Sketcher.Constraint("DistanceY", 0, 2, 0, 1, Q("7 in")),
    Sketcher.Constraint("DistanceX", 1, 2, 1, 1, Q("4.25 in")),
    Sketcher.Constraint("DistanceX", 1, 2, -1, 1, Q("2.5 in")),
])
sketch15.setExpression("Constraints[17]", "Params.sketch15_width")
sketch15.setExpression("Constraints[18]", "Params.sketch15_height")
sketch15.setExpression("Constraints[19]", "Params.sketch15_width2")
pad11 = doc.addObject("PartDesign::Pad", "Pad010")
body11.addObject(pad11)
pad11.Profile = sketch15
pad11.setExpression("Length", "Params.pad11_length")
pad11.Reversed = True
body12 = doc.addObject("PartDesign::Body", "Body011")

# Sketch on YZ plane
sketch16 = doc.addObject("Sketcher::SketchObject", "Sketch015")
body12.addObject(sketch16)
sketch16.AttachmentSupport = (doc.getObject("YZ_Plane011"), [""])
sketch16.MapMode = "FlatFace"
sketch16.AttachmentOffset = App.Placement(App.Vector(0, 0, 2.5 * 25.4), App.Rotation())
add_polygon(sketch16, [(-64, 0), (-64, 108), (44, 108), (44, 286), (-64, 286), (-572, 108), (-572, 0)])  # lines 0-6
sketch16.addConstraint([
    Sketcher.Constraint("Vertical", 0),
    Sketcher.Constraint("Horizontal", 1),
    Sketcher.Constraint("Vertical", 2),
    Sketcher.Constraint("Horizontal", 3),
    Sketcher.Constraint("Vertical", 5),
    Sketcher.Constraint("Horizontal", 6),
    Sketcher.Constraint("PointOnObject", 5, 2, -1),
    Sketcher.Constraint("Horizontal", 1, 2, 4, 2),
    Sketcher.Constraint("Vertical", 0, 2, 3, 2),
    Sketcher.Constraint("Equal", 3, 0),
    Sketcher.Constraint("DistanceX", 6, 1, 6, 2, Q("20 in")),
    Sketcher.Constraint("DistanceY", 2, 1, 2, 2, Q("7 in")),
    Sketcher.Constraint("DistanceX", 1, 1, 1, 2, Q("4.25 in")),
    Sketcher.Constraint("DistanceX", 0, 2, -1, 1, Q("2.5 in")),
])
sketch16.setExpression("Constraints[17]", "Params.sketch16_width")
sketch16.setExpression("Constraints[18]", "Params.sketch16_height")
sketch16.setExpression("Constraints[19]", "Params.sketch16_width2")
pad12 = doc.addObject("PartDesign::Pad", "Pad011")
body12.addObject(pad12)
pad12.Profile = sketch16
pad12.setExpression("Length", "Params.pad12_length")
body13 = doc.addObject("PartDesign::Body", "Body012")
body13.AllowCompound = True

# Sketch on XZ plane
sketch17 = doc.addObject("Sketcher::SketchObject", "Sketch016")
body13.addObject(sketch17)
sketch17.AttachmentSupport = (doc.getObject("XZ_Plane012"), [""])
sketch17.MapMode = "FlatFace"
sketch17.AttachmentOffset = App.Placement(App.Vector(0, 0, 2.5 * 25.4), App.Rotation())
sketch17.addGeometry([
    Part.Circle(App.Vector(266.7, 44.5, 0), App.Vector(0, 0, 1), 3.2),  # 0
    Part.Circle(App.Vector(368.3, 44.5, 0), App.Vector(0, 0, 1), 3.2),  # 1
    Part.Circle(App.Vector(444.5, 44.5, 0), App.Vector(0, 0, 1), 3.2),  # 2
    Part.Circle(App.Vector(-444.5, 44.5, 0), App.Vector(0, 0, 1), 3.2),  # 3
    Part.Circle(App.Vector(-368.3, 44.5, 0), App.Vector(0, 0, 1), 3.2),  # 4
    Part.Circle(App.Vector(-266.7, 44.5, 0), App.Vector(0, 0, 1), 3.2),  # 5
], False)
sketch17.addConstraint([
    Sketcher.Constraint("Equal", 0, 1),
    Sketcher.Constraint("Equal", 1, 2),
    Sketcher.Constraint("Equal", 2, 3),
    Sketcher.Constraint("Equal", 3, 4),
    Sketcher.Constraint("Equal", 4, 5),
    Sketcher.Constraint("Symmetric", 2, 3, 3, 3, -2),
    Sketcher.Constraint("Symmetric", 1, 3, 4, 3, -2),
    Sketcher.Constraint("Symmetric", 0, 3, 5, 3, -2),
    Sketcher.Constraint("Horizontal", 0, 3, 1, 3),
    Sketcher.Constraint("Horizontal", 1, 3, 2, 3),
    Sketcher.Constraint("Diameter", 0, Q("0.25 in")),
    Sketcher.Constraint("DistanceX", 0, 3, 1, 3, Q("4 in")),
    Sketcher.Constraint("DistanceX", 1, 3, 2, 3, Q("3 in")),
    Sketcher.Constraint("DistanceX", 3, 3, 0, 3, Q("28 in")),
    Sketcher.Constraint("DistanceY", -1, 1, 0, 3, Q("1.75 in")),
])
sketch17.setExpression("Constraints[10]", "Params.sketch17_diameter")
pad13 = doc.addObject("PartDesign::Pad", "Pad012")
body13.addObject(pad13)
pad13.Profile = sketch17
pad13.setExpression("Length", "Params.pad13_length")
pad13.Reversed = True
doc.recompute()

body14 = doc.addObject("PartDesign::Body", "Body013")
body14.BaseFeature = body13
boolean = doc.addObject("PartDesign::Boolean", "Boolean")
body5.addObject(boolean)
boolean.Type = "Cut"
boolean.addObjects([body14])
doc.recompute()

boolean2 = doc.addObject("PartDesign::Boolean", "Boolean001")
body6.addObject(boolean2)
boolean2.Type = "Cut"
boolean2.addObjects([body13])
body15 = doc.addObject("PartDesign::Body", "Body014")
body15.AllowCompound = True

# Sketch on YZ plane
sketch18 = doc.addObject("Sketcher::SketchObject", "Sketch017")
body15.addObject(sketch18)
sketch18.AttachmentSupport = (doc.getObject("YZ_Plane014"), [""])
sketch18.MapMode = "FlatFace"
sketch18.AttachmentOffset = App.Placement(App.Vector(0, 0, 3.25 * 25.4), App.Rotation())
sketch18.addGeometry([
    Part.Circle(App.Vector(-108, 44.5, 0), App.Vector(0, 0, 1), 4.8),
    Part.Circle(App.Vector(-368.3, 44.5, 0), App.Vector(0, 0, 1), 4.8),
    Part.Circle(App.Vector(-469.9, 44.5, 0), App.Vector(0, 0, 1), 4.8),
], False)
sketch18.addConstraint([
    Sketcher.Constraint("Equal", 0, 1),
    Sketcher.Constraint("Equal", 1, 2),
    Sketcher.Constraint("Horizontal", 0, 3, 1, 3),
    Sketcher.Constraint("Horizontal", 1, 3, 2, 3),
    Sketcher.Constraint("Diameter", 0, Q("0.375 in")),
    Sketcher.Constraint("DistanceX", 2, 3, 1, 3, Q("4 in")),
    Sketcher.Constraint("DistanceX", 1, 3, -1, 1, Q("14.5 in")),
    Sketcher.Constraint("DistanceX", 0, 3, -1, 1, Q("4.25 in")),
    Sketcher.Constraint("DistanceY", -1, 1, 0, 3, Q("1.75 in")),
])
sketch18.setExpression("Constraints[4]", "Params.sketch18_diameter")
pad14 = doc.addObject("PartDesign::Pad", "Pad013")
body15.addObject(pad14)
pad14.Profile = sketch18
pad14.setExpression("Length", "Params.pad14_length")
pad14.Reversed = True
doc.recompute()

body16 = doc.addObject("PartDesign::Body", "Body015")
body16.BaseFeature = body15
boolean3 = doc.addObject("PartDesign::Boolean", "Boolean002")
body11.addObject(boolean3)
boolean3.Type = "Cut"
boolean3.addObjects([body16])
doc.recompute()

boolean4 = doc.addObject("PartDesign::Boolean", "Boolean003")
body12.addObject(boolean4)
boolean4.Type = "Cut"
boolean4.addObjects([body15])

doc.recompute()
